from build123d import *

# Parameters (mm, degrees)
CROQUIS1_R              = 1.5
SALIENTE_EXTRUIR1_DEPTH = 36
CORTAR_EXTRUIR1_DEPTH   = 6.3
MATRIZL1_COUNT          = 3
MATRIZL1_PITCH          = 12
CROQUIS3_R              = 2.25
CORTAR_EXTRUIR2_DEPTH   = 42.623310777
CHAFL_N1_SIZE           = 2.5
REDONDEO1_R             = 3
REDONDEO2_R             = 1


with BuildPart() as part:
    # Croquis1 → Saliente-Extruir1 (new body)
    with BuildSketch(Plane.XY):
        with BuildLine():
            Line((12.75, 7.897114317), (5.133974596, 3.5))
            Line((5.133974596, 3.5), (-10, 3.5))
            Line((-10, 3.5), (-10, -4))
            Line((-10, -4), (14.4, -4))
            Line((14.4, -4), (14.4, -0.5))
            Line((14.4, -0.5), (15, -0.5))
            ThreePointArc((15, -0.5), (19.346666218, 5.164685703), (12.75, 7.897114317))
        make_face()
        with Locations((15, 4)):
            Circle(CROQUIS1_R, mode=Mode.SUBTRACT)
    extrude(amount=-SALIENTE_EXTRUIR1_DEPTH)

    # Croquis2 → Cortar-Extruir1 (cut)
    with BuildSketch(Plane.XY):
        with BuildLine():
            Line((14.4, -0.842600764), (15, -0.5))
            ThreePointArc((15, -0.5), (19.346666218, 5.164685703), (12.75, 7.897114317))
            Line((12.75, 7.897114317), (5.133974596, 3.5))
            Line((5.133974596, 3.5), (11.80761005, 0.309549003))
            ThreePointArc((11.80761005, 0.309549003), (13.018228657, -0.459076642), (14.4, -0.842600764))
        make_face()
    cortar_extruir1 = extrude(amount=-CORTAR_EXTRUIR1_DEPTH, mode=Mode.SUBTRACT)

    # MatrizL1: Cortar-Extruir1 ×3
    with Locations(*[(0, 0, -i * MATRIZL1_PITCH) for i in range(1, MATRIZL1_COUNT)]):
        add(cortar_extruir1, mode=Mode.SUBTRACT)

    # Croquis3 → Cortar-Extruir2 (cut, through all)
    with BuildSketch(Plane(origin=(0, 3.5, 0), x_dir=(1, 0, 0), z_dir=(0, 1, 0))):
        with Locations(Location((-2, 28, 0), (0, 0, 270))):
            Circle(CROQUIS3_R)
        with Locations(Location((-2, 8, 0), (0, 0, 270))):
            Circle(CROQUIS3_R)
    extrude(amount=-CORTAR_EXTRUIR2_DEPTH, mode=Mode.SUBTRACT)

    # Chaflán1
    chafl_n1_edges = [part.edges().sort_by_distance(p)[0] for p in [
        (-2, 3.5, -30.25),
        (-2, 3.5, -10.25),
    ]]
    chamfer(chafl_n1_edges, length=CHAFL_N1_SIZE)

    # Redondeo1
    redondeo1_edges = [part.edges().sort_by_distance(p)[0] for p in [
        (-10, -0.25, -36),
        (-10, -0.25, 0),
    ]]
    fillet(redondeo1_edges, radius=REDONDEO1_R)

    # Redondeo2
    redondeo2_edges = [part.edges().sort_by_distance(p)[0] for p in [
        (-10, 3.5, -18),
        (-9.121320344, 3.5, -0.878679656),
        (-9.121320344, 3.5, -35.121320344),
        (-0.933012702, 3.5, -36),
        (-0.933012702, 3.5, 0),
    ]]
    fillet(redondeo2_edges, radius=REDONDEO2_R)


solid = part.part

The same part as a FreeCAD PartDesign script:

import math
import FreeCAD as App
import Part
import Sketcher

V = App.Vector
Q = App.Units.Quantity


def edges_at(feature, points):
    """Names of the edges that pass closest to the given points."""
    edges = feature.Shape.Edges
    near = lambda p: min(range(len(edges)), key=lambda i: edges[i].distToShape(Part.Vertex(*p))[0])
    return sorted({f"Edge{near(p) + 1}" for p in points})

doc = App.newDocument("Part")
body = doc.addObject("PartDesign::Body", "Body")

sketch1 = doc.addObject("Sketcher::SketchObject", "Sketch")
body.addObject(sketch1)
sketch1.AttachmentSupport = (doc.XY_Plane, [""])
sketch1.MapMode = "FlatFace"
sketch1.addGeometry(Part.LineSegment(V(12.75, 7.897114, 0), V(5.133975, 3.5, 0)), False)
sketch1.addGeometry(Part.LineSegment(V(5.133975, 3.5, 0), V(-10, 3.5, 0)), False)
sketch1.addGeometry(Part.LineSegment(V(-10, 3.5, 0), V(-10, -4, 0)), False)
sketch1.addGeometry(Part.LineSegment(V(-10, -4, 0), V(14.4, -4, 0)), False)
sketch1.addGeometry(Part.LineSegment(V(14.4, -4, 0), V(14.4, -0.5, 0)), False)
sketch1.addGeometry(Part.LineSegment(V(14.4, -0.5, 0), V(15, -0.5, 0)), False)
sketch1.addGeometry(Part.ArcOfCircle(Part.Circle(V(15, 4, 0), V(0, 0, 1), 4.5), math.radians(-90), math.radians(120)), False)
sketch1.addGeometry(Part.Circle(V(15, 4, 0), V(0, 0, 1), 1.5), False)
sketch1.addConstraint(Sketcher.Constraint("Coincident", 0, 2, 1, 1))
sketch1.addConstraint(Sketcher.Constraint("Coincident", 1, 2, 2, 1))
sketch1.addConstraint(Sketcher.Constraint("Coincident", 2, 2, 3, 1))
sketch1.addConstraint(Sketcher.Constraint("Coincident", 3, 2, 4, 1))
sketch1.addConstraint(Sketcher.Constraint("Coincident", 4, 2, 5, 1))
sketch1.addConstraint(Sketcher.Constraint("Tangent", 5, 2, 6, 1))
sketch1.addConstraint(Sketcher.Constraint("Tangent", 6, 2, 0, 1))
sketch1.addConstraint(Sketcher.Constraint("Horizontal", 1))
sketch1.addConstraint(Sketcher.Constraint("Vertical", 2))
sketch1.addConstraint(Sketcher.Constraint("Horizontal", 3))
sketch1.addConstraint(Sketcher.Constraint("Vertical", 4))
sketch1.addConstraint(Sketcher.Constraint("Horizontal", 5))
sketch1.addConstraint(Sketcher.Constraint("Coincident", 7, 3, 6, 3))
sketch1.addConstraint(Sketcher.Constraint("Diameter", 7, Q("3 mm")))
sketch1.addConstraint(Sketcher.Constraint("Radius", 6, Q("4.5 mm")))
sketch1.addConstraint(Sketcher.Constraint("Angle", 0, Q("-150 deg")))
sketch1.addConstraint(Sketcher.Constraint("DistanceX", 3, 1, 3, 2, Q("24.4 mm")))
sketch1.addConstraint(Sketcher.Constraint("DistanceX", 5, 1, 5, 2, Q("0.6 mm")))
sketch1.addConstraint(Sketcher.Constraint("DistanceY", 2, 2, 2, 1, Q("7.5 mm")))
sketch1.addConstraint(Sketcher.Constraint("DistanceY", 4, 1, 4, 2, Q("3.5 mm")))
sketch1.addConstraint(Sketcher.Constraint("DistanceX", -1, 1, 6, 3, Q("15 mm")))
sketch1.addConstraint(Sketcher.Constraint("DistanceY", -1, 1, 6, 3, Q("4 mm")))
pad1 = doc.addObject("PartDesign::Pad", "Pad")
body.addObject(pad1)
pad1.Profile = sketch1
pad1.Length = 36
pad1.Reversed = True

sketch2 = doc.addObject("Sketcher::SketchObject", "Sketch001")
body.addObject(sketch2)
sketch2.AttachmentSupport = (doc.XY_Plane, [""])
sketch2.MapMode = "FlatFace"
sketch2.addGeometry(Part.LineSegment(V(14.4, -0.842601, 0), V(15, -0.5, 0)), False)
sketch2.addGeometry(Part.ArcOfCircle(Part.Circle(V(15, 4, 0), V(0, 0, 1), 4.5), math.radians(-90), math.radians(120)), False)
sketch2.addGeometry(Part.LineSegment(V(12.75, 7.897114, 0), V(5.133975, 3.5, 0)), False)
sketch2.addGeometry(Part.LineSegment(V(5.133975, 3.5, 0), V(11.80761, 0.309549, 0)), False)
sketch2.addGeometry(Part.ArcOfCircle(Part.Circle(V(15, 4, 0), V(0, 0, 1), 4.879629), math.radians(-130.861136), math.radians(-97.062973)), False)
sketch2.addConstraint(Sketcher.Constraint("Coincident", 0, 2, 1, 1))
sketch2.addConstraint(Sketcher.Constraint("Tangent", 1, 2, 2, 1))
sketch2.addConstraint(Sketcher.Constraint("Coincident", 2, 2, 3, 1))
sketch2.addConstraint(Sketcher.Constraint("Coincident", 3, 2, 4, 1))
sketch2.addConstraint(Sketcher.Constraint("Coincident", 4, 2, 0, 1))
sketch2.addConstraint(Sketcher.Constraint("Coincident", 4, 3, 1, 3))
sketch2.addConstraint(Sketcher.Constraint("Vertical", 4, 3, 0, 2))
sketch2.addConstraint(Sketcher.Constraint("Radius", 1, Q("4.5 mm")))
sketch2.addConstraint(Sketcher.Constraint("Angle", 2, Q("-150 deg")))
sketch2.addConstraint(Sketcher.Constraint("DistanceX", -1, 1, 1, 3, Q("15 mm")))
sketch2.addConstraint(Sketcher.Constraint("DistanceY", -1, 1, 1, 3, Q("4 mm")))
sketch2.addConstraint(Sketcher.Constraint("DistanceY", 0, 2, 2, 2, Q("4 mm")))
sketch2.addConstraint(Sketcher.Constraint("DistanceX", -1, 1, 4, 2, Q("14.4 mm")))
sketch2.addConstraint(Sketcher.Constraint("Radius", 4, Q("4.879629 mm")))
sketch2.addConstraint(Sketcher.Constraint("DistanceX", -1, 1, 3, 2, Q("11.80761 mm")))
pocket1 = doc.addObject("PartDesign::Pocket", "Pocket")
body.addObject(pocket1)
pocket1.Profile = sketch2
pocket1.Length = 6.3
doc.recompute()

linearpattern = doc.addObject("PartDesign::LinearPattern", "LinearPattern")
body.addObject(linearpattern)
linearpattern.Originals = [pocket1]
linearpattern.Direction = (doc.Z_Axis, [""])
linearpattern.Mode = "offset"
linearpattern.Offset = 12
linearpattern.Occurrences = 3
linearpattern.Reversed = True
body.Tip = linearpattern

sketch3 = doc.addObject("Sketcher::SketchObject", "Sketch002")
body.addObject(sketch3)
sketch3.AttachmentSupport = (doc.XZ_Plane, [""])
sketch3.MapMode = "FlatFace"
sketch3.AttachmentOffset = App.Placement(V(0, 0, -3.5), App.Rotation())
sketch3.addGeometry(Part.Circle(V(-2, -28, 0), V(0, 0, 1), 2.25), False)
sketch3.addGeometry(Part.Circle(V(-2, -8, 0), V(0, 0, 1), 2.25), False)
sketch3.addConstraint(Sketcher.Constraint("Equal", 0, 1))
sketch3.addConstraint(Sketcher.Constraint("Vertical", 0, 3, 1, 3))
sketch3.addConstraint(Sketcher.Constraint("Diameter", 0, Q("4.5 mm")))
sketch3.addConstraint(Sketcher.Constraint("DistanceX", 0, 3, -1, 1, Q("2 mm")))
sketch3.addConstraint(Sketcher.Constraint("DistanceY", 0, 3, -1, 1, Q("28 mm")))
sketch3.addConstraint(Sketcher.Constraint("DistanceY", 1, 3, -1, 1, Q("8 mm")))
pocket2 = doc.addObject("PartDesign::Pocket", "Pocket001")
body.addObject(pocket2)
pocket2.Profile = sketch3
pocket2.Type = "ThroughAll"
pocket2.Reversed = True
doc.recompute()

chamfer = doc.addObject("PartDesign::Chamfer", "Chamfer")
body.addObject(chamfer)
chamfer.Base = (pocket2, edges_at(pocket2, [(-2, 3.5, -30.25), (-2, 3.5, -10.25)]))
chamfer.Size = 2.5
doc.recompute()

fillet = doc.addObject("PartDesign::Fillet", "Fillet")
body.addObject(fillet)
fillet.Base = (chamfer, edges_at(chamfer, [(-10, -0.25, -36), (-10, -0.25, 0)]))
fillet.Radius = 3
doc.recompute()

fillet2 = doc.addObject("PartDesign::Fillet", "Fillet001")
body.addObject(fillet2)
fillet2.Base = (fillet, edges_at(fillet, [
    (-10, 3.5, -18),
    (-9.121, 3.5, -0.879),
    (-9.121, 3.5, -35.121),
    (-0.933, 3.5, -36),
    (-0.933, 3.5, 0),
]))
fillet2.Radius = 1

doc.recompute()
